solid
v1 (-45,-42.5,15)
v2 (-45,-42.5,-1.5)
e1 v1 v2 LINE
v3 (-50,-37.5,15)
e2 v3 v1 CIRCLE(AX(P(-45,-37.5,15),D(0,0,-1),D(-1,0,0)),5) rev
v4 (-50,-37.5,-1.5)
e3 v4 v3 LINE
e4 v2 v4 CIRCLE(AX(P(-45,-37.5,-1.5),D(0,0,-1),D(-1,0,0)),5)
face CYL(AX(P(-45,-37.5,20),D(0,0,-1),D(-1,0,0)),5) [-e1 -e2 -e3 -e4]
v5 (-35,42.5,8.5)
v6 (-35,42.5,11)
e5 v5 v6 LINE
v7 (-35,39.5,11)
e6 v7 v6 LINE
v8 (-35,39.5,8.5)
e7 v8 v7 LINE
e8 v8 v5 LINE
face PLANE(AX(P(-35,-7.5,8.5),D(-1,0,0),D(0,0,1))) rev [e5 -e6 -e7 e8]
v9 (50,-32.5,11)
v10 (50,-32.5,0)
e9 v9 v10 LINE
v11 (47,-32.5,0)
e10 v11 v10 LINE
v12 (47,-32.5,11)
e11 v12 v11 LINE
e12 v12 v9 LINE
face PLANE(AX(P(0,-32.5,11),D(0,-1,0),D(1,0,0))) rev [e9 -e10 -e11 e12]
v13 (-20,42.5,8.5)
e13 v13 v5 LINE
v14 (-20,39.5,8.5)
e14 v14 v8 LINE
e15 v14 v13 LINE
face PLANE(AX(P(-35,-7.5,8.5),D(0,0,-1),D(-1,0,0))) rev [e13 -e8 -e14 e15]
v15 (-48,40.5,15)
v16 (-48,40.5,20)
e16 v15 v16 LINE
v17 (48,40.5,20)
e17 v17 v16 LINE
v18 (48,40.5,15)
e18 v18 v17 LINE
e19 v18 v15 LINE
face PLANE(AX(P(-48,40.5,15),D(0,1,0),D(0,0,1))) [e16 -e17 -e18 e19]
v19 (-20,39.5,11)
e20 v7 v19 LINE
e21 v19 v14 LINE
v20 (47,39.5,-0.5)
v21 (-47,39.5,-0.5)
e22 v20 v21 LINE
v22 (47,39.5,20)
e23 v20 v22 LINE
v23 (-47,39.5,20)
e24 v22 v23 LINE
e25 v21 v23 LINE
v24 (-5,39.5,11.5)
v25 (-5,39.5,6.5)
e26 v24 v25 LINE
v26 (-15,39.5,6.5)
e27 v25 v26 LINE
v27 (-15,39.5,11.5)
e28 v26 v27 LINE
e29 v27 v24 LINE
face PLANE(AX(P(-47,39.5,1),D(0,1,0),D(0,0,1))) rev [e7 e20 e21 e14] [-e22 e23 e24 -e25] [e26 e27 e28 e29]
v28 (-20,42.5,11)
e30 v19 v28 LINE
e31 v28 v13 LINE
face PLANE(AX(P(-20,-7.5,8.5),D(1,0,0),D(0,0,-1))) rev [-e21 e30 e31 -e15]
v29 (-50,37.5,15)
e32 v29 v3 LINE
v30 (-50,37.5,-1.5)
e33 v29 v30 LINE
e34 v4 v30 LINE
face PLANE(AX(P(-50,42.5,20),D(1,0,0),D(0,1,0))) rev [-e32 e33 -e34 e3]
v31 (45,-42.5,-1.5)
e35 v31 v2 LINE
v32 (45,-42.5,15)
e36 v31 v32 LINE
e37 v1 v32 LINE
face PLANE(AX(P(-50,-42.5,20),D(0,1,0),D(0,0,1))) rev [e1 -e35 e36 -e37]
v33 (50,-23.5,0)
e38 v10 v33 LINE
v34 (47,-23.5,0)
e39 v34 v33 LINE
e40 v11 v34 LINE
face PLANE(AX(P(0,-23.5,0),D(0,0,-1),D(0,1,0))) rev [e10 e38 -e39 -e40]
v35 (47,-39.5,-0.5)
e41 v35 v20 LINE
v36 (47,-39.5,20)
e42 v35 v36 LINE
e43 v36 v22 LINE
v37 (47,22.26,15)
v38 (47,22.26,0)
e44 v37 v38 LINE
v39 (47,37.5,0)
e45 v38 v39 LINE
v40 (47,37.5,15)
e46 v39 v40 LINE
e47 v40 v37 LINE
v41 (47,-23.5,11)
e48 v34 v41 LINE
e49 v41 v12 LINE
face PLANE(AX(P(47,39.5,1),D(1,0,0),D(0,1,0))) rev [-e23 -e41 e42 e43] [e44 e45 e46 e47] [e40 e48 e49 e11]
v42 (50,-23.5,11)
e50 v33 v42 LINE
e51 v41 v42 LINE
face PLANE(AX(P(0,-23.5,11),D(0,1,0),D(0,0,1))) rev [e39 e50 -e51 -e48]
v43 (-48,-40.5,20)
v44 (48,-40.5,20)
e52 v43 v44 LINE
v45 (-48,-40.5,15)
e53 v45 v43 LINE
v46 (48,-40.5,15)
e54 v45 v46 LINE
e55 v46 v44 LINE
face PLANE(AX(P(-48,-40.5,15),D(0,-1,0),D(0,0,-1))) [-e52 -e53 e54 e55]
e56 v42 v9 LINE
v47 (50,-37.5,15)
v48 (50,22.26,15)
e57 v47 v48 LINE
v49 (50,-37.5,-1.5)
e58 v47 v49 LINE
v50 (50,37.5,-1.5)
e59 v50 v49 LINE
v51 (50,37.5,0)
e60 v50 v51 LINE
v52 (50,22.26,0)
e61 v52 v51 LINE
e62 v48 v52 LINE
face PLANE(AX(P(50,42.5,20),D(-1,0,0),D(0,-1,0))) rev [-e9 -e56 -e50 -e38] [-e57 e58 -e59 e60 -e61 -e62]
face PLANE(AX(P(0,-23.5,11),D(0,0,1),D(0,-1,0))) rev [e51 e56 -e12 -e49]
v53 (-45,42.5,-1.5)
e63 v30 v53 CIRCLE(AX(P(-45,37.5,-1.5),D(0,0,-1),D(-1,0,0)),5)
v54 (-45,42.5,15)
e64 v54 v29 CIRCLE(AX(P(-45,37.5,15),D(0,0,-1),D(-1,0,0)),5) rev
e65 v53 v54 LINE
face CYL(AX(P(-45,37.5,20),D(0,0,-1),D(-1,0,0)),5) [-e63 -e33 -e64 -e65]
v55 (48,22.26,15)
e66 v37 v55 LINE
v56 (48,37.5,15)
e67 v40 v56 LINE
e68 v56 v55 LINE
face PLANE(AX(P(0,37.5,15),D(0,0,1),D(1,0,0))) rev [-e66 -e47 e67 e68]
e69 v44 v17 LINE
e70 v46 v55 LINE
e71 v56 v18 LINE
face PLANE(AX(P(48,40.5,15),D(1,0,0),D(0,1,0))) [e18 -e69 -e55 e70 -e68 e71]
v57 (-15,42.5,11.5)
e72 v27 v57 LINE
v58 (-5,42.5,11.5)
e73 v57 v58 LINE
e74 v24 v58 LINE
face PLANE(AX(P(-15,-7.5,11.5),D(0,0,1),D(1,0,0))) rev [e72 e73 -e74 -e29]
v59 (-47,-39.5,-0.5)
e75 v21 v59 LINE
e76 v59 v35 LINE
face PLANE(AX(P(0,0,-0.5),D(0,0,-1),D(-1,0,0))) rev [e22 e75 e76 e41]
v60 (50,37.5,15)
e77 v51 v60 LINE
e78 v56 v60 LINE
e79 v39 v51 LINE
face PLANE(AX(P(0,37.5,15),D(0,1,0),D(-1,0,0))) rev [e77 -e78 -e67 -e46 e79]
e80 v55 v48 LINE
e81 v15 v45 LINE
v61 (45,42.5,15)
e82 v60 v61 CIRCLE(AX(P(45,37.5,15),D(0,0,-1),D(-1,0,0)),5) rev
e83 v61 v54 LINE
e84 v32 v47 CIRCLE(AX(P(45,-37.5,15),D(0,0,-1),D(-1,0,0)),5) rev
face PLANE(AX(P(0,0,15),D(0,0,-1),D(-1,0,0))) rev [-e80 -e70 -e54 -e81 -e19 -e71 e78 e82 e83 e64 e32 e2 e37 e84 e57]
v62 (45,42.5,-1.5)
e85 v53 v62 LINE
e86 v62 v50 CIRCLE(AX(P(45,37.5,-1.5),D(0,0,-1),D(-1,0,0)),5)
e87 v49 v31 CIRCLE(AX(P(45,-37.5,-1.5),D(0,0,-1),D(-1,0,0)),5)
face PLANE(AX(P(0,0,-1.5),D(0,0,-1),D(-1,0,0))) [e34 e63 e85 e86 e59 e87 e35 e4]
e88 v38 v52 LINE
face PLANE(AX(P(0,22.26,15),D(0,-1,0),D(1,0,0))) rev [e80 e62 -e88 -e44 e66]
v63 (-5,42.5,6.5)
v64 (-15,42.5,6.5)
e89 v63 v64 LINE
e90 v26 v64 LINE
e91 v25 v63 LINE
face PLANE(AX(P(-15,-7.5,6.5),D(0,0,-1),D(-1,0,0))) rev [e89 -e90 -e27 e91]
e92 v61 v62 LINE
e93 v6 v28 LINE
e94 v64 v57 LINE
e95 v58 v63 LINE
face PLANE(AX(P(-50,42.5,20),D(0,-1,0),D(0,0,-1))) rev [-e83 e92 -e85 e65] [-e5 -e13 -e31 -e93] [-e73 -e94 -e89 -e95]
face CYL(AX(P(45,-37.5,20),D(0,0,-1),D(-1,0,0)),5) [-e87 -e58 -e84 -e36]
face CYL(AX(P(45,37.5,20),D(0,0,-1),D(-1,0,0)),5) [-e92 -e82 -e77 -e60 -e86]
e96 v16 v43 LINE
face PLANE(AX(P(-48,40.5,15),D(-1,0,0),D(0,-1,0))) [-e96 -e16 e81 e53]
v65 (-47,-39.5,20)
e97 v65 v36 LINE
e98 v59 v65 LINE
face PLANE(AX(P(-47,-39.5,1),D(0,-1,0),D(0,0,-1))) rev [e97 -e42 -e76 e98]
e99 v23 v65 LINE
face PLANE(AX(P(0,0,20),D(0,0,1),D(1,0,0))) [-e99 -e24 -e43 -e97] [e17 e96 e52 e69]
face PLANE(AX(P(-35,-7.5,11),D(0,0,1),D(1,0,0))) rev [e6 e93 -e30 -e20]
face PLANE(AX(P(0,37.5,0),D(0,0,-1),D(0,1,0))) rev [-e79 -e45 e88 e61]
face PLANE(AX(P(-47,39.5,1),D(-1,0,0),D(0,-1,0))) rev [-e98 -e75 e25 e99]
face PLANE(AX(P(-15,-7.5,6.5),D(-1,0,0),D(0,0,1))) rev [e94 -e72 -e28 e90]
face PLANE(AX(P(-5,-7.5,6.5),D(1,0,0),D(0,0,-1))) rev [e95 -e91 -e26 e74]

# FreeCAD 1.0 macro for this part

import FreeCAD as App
import Part
import Sketcher

V = App.Vector


def edges_at(feature, points):
    """Names of the edges that pass closest to the given points."""
    edges = feature.Shape.Edges
    near = lambda p: min(range(len(edges)), key=lambda i: edges[i].distToShape(Part.Vertex(*p))[0])
    return sorted({f"Edge{near(p) + 1}" for p in points})

doc = App.newDocument("Part")
body = doc.addObject("PartDesign::Body", "Body")

# Sketch on XY plane
sketch1 = body.newObject("Sketcher::SketchObject", "Sketch")
sketch1.AttachmentSupport = (doc.getObject("XY_Plane"), [""])
sketch1.MapMode = "FlatFace"
sketch1.addGeometry([
    Part.LineSegment(V(-50, 42, 0), V(-50, -42, 0)),
    Part.LineSegment(V(-50, -42, 0), V(50, -42, 0)),
    Part.LineSegment(V(50, -42, 0), V(50, 42, 0)),
    Part.LineSegment(V(50, 42, 0), V(-50, 42, 0)),
], False)
sketch1.addConstraint([
    Sketcher.Constraint("Coincident", 0, 2, 1, 1),
    Sketcher.Constraint("Coincident", 1, 2, 2, 1),
    Sketcher.Constraint("Coincident", 2, 2, 3, 1),
    Sketcher.Constraint("Coincident", 3, 2, 0, 1),
    Sketcher.Constraint("Vertical", 0),
    Sketcher.Constraint("Horizontal", 1),
    Sketcher.Constraint("Vertical", 2),
    Sketcher.Constraint("Horizontal", 3),
    Sketcher.Constraint("Symmetric", 0, 2, 2, 2, -1, 1),
    Sketcher.Constraint("DistanceX", 1, 1, 1, 2, 100.0),
    Sketcher.Constraint("DistanceY", 0, 2, 0, 1, 85.0),
])
pad1 = body.newObject("PartDesign::Pad", "Pad")
pad1.Profile = sketch1
pad1.Length = 20

# Sketch on XY plane
sketch2 = body.newObject("Sketcher::SketchObject", "Sketch001")
sketch2.AttachmentSupport = (doc.getObject("XY_Plane"), [""])
sketch2.MapMode = "FlatFace"
sketch2.AttachmentOffset = App.Placement(V(0, 0, 20), App.Rotation())
sketch2.addGeometry([
    Part.LineSegment(V(-50, 42, 0), V(-50, -42, 0)),  # 0
    Part.LineSegment(V(-50, -42, 0), V(50, -42, 0)),  # 1
    Part.LineSegment(V(50, -42, 0), V(50, 42, 0)),  # 2
    Part.LineSegment(V(50, 42, 0), V(-50, 42, 0)),  # 3
    Part.LineSegment(V(48, -40, 0), V(-48, -40, 0)),  # 4
    Part.LineSegment(V(-48, -40, 0), V(-48, 40, 0)),  # 5
    Part.LineSegment(V(-48, 40, 0), V(48, 40, 0)),  # 6
    Part.LineSegment(V(48, 40, 0), V(48, -40, 0)),  # 7
], False)
sketch2.addConstraint([
    Sketcher.Constraint("Coincident", 0, 2, 1, 1),
    Sketcher.Constraint("Coincident", 1, 2, 2, 1),
    Sketcher.Constraint("Coincident", 2, 2, 3, 1),
    Sketcher.Constraint("Coincident", 3, 2, 0, 1),
    Sketcher.Constraint("Coincident", 4, 2, 5, 1),
    Sketcher.Constraint("Coincident", 5, 2, 6, 1),
    Sketcher.Constraint("Coincident", 6, 2, 7, 1),
    Sketcher.Constraint("Coincident", 7, 2, 4, 1),
    Sketcher.Constraint("Vertical", 0),
    Sketcher.Constraint("Horizontal", 1),
    Sketcher.Constraint("Vertical", 2),
    Sketcher.Constraint("Horizontal", 3),
    Sketcher.Constraint("Horizontal", 4),
    Sketcher.Constraint("Vertical", 5),
    Sketcher.Constraint("Horizontal", 6),
    Sketcher.Constraint("Vertical", 7),
    Sketcher.Constraint("Symmetric", 0, 2, 2, 2, -1, 1),
    Sketcher.Constraint("Symmetric", 4, 2, 6, 2, -1, 1),
    Sketcher.Constraint("DistanceX", 1, 1, 1, 2, 100.0),
    Sketcher.Constraint("DistanceX", 4, 2, 4, 1, 96.0),
    Sketcher.Constraint("DistanceY", 0, 2, 0, 1, 85.0),
    Sketcher.Constraint("DistanceY", 5, 1, 5, 2, 81.0),
])
pocket1 = body.newObject("PartDesign::Pocket", "Pocket")
pocket1.Profile = sketch2
pocket1.Length = 5

# Sketch on XY plane
sketch3 = body.newObject("Sketcher::SketchObject", "Sketch002")
sketch3.AttachmentSupport = (doc.getObject("XY_Plane"), [""])
sketch3.MapMode = "FlatFace"
sketch3.AttachmentOffset = App.Placement(V(0, 0, 20), App.Rotation())
sketch3.addGeometry([
    Part.LineSegment(V(-47, 40, 0), V(-47, -40, 0)),
    Part.LineSegment(V(-47, -40, 0), V(47, -40, 0)),
    Part.LineSegment(V(47, -40, 0), V(47, 40, 0)),
    Part.LineSegment(V(47, 40, 0), V(-47, 40, 0)),
], False)
sketch3.addConstraint([
    Sketcher.Constraint("Coincident", 0, 2, 1, 1),
    Sketcher.Constraint("Coincident", 1, 2, 2, 1),
    Sketcher.Constraint("Coincident", 2, 2, 3, 1),
    Sketcher.Constraint("Coincident", 3, 2, 0, 1),
    Sketcher.Constraint("Vertical", 0),
    Sketcher.Constraint("Horizontal", 1),
    Sketcher.Constraint("Vertical", 2),
    Sketcher.Constraint("Horizontal", 3),
    Sketcher.Constraint("Symmetric", 0, 2, 2, 2, -1, 1),
    Sketcher.Constraint("DistanceX", 1, 1, 1, 2, 94.0),
    Sketcher.Constraint("DistanceY", 0, 2, 0, 1, 79.0),
])
pocket2 = body.newObject("PartDesign::Pocket", "Pocket001")
pocket2.Profile = sketch3
pocket2.Length = 19

# Sketch on XY plane
sketch4 = body.newObject("Sketcher::SketchObject", "Sketch003")
sketch4.AttachmentSupport = (doc.getObject("XY_Plane"), [""])
sketch4.MapMode = "FlatFace"
sketch4.addGeometry([
    Part.LineSegment(V(50, 42, 0), V(50, -42, 0)),
    Part.LineSegment(V(50, -42, 0), V(-50, -42, 0)),
    Part.LineSegment(V(-50, -42, 0), V(-50, 42, 0)),
    Part.LineSegment(V(-50, 42, 0), V(50, 42, 0)),
], False)
sketch4.addConstraint([
    Sketcher.Constraint("Coincident", 0, 2, 1, 1),
    Sketcher.Constraint("Coincident", 1, 2, 2, 1),
    Sketcher.Constraint("Coincident", 2, 2, 3, 1),
    Sketcher.Constraint("Coincident", 3, 2, 0, 1),
    Sketcher.Constraint("Vertical", 0),
    Sketcher.Constraint("Horizontal", 1),
    Sketcher.Constraint("Vertical", 2),
    Sketcher.Constraint("Horizontal", 3),
    Sketcher.Constraint("Symmetric", 0, 2, 2, 2, -1, 1),
    Sketcher.Constraint("DistanceX", 1, 2, 1, 1, 100.0),
    Sketcher.Constraint("DistanceY", 0, 2, 0, 1, 85.0),
])
pad2 = body.newObject("PartDesign::Pad", "Pad001")
pad2.Profile = sketch4
pad2.Length = 1.5
pad2.Reversed = True

# Sketch on XY plane
sketch5 = body.newObject("Sketcher::SketchObject", "Sketch004")
sketch5.AttachmentSupport = (doc.getObject("XY_Plane"), [""])
sketch5.MapMode = "FlatFace"
sketch5.AttachmentOffset = App.Placement(V(0, 0, 1), App.Rotation())
sketch5.addGeometry([
    Part.LineSegment(V(-47, 40, 0), V(-47, -40, 0)),
    Part.LineSegment(V(-47, -40, 0), V(47, -40, 0)),
    Part.LineSegment(V(47, -40, 0), V(47, 40, 0)),
    Part.LineSegment(V(47, 40, 0), V(-47, 40, 0)),
], False)
sketch5.addConstraint([
    Sketcher.Constraint("Coincident", 0, 2, 1, 1),
    Sketcher.Constraint("Coincident", 1, 2, 2, 1),
    Sketcher.Constraint("Coincident", 2, 2, 3, 1),
    Sketcher.Constraint("Coincident", 3, 2, 0, 1),
    Sketcher.Constraint("Vertical", 0),
    Sketcher.Constraint("Horizontal", 1),
    Sketcher.Constraint("Vertical", 2),
    Sketcher.Constraint("Horizontal", 3),
    Sketcher.Constraint("Symmetric", 0, 2, 2, 2, -1, 1),
    Sketcher.Constraint("DistanceX", 1, 1, 1, 2, 94.0),
    Sketcher.Constraint("DistanceY", 0, 2, 0, 1, 79.0),
])
pocket3 = body.newObject("PartDesign::Pocket", "Pocket002")
pocket3.Profile = sketch5
pocket3.Length = 1.5

# Sketch on YZ plane
sketch6 = body.newObject("Sketcher::SketchObject", "Sketch005")
sketch6.AttachmentSupport = (doc.getObject("YZ_Plane"), [""])
sketch6.MapMode = "FlatFace"
sketch6.AttachmentOffset = App.Placement(V(0, 0, 50), App.Rotation())
sketch6.addGeometry([
    Part.LineSegment(V(-24, 11, 0), V(-32, 11, 0)),
    Part.LineSegment(V(-32, 11, 0), V(-32, 0, 0)),
    Part.LineSegment(V(-32, 0, 0), V(-24, 0, 0)),
    Part.LineSegment(V(-24, 0, 0), V(-24, 11, 0)),
], False)
sketch6.addConstraint([
    Sketcher.Constraint("Coincident", 0, 2, 1, 1),
    Sketcher.Constraint("Coincident", 1, 2, 2, 1),
    Sketcher.Constraint("Coincident", 2, 2, 3, 1),
    Sketcher.Constraint("Coincident", 3, 2, 0, 1),
    Sketcher.Constraint("Horizontal", 0),
    Sketcher.Constraint("Vertical", 1),
    Sketcher.Constraint("Horizontal", 2),
    Sketcher.Constraint("Vertical", 3),
    Sketcher.Constraint("PointOnObject", 1, 2, -1),
    Sketcher.Constraint("DistanceX", 0, 2, 0, 1, 9.0),
    Sketcher.Constraint("DistanceY", 1, 2, 1, 1, 11.0),
    Sketcher.Constraint("DistanceX", 0, 2, -1, 1, 32.5),
])
pocket4 = body.newObject("PartDesign::Pocket", "Pocket003")
pocket4.Profile = sketch6
pocket4.Length = 50

# Sketch on YZ plane
sketch7 = body.newObject("Sketcher::SketchObject", "Sketch006")
sketch7.AttachmentSupport = (doc.getObject("YZ_Plane"), [""])
sketch7.MapMode = "FlatFace"
sketch7.AttachmentOffset = App.Placement(V(0, 0, 50), App.Rotation())
sketch7.addGeometry([
    Part.LineSegment(V(38, 15, 0), V(22, 15, 0)),
    Part.LineSegment(V(22, 15, 0), V(22, 0, 0)),
    Part.LineSegment(V(22, 0, 0), V(38, 0, 0)),
    Part.LineSegment(V(38, 0, 0), V(38, 15, 0)),
], False)
sketch7.addConstraint([
    Sketcher.Constraint("Coincident", 0, 2, 1, 1),
    Sketcher.Constraint("Coincident", 1, 2, 2, 1),
    Sketcher.Constraint("Coincident", 2, 2, 3, 1),
    Sketcher.Constraint("Coincident", 3, 2, 0, 1),
    Sketcher.Constraint("Horizontal", 0),
    Sketcher.Constraint("Vertical", 1),
    Sketcher.Constraint("Horizontal", 2),
    Sketcher.Constraint("Vertical", 3),
    Sketcher.Constraint("PointOnObject", 1, 2, -1),
    Sketcher.Constraint("DistanceY", 1, 2, 1, 1, 15.0),
    Sketcher.Constraint("DistanceX", 0, 2, 0, 1, 15.24),
    Sketcher.Constraint("DistanceX", -1, 1, 2, 2, 37.5),
])
pocket5 = body.newObject("PartDesign::Pocket", "Pocket004")
pocket5.Profile = sketch7
pocket5.Length = 50

# Sketch on XZ plane
sketch8 = body.newObject("Sketcher::SketchObject", "Sketch007")
sketch8.AttachmentSupport = (doc.getObject("XZ_Plane"), [""])
sketch8.MapMode = "FlatFace"
sketch8.AttachmentOffset = App.Placement(V(0, 0, -42.5), App.Rotation())
sketch8.addGeometry([
    Part.LineSegment(V(-35, 8.5, 0), V(-35, 11, 0)),
    Part.LineSegment(V(-35, 11, 0), V(-20, 11, 0)),
    Part.LineSegment(V(-20, 11, 0), V(-20, 8.5, 0)),
    Part.LineSegment(V(-20, 8.5, 0), V(-35, 8.5, 0)),
], False)
sketch8.addConstraint([
    Sketcher.Constraint("Coincident", 0, 2, 1, 1),
    Sketcher.Constraint("Coincident", 1, 2, 2, 1),
    Sketcher.Constraint("Coincident", 2, 2, 3, 1),
    Sketcher.Constraint("Coincident", 3, 2, 0, 1),
    Sketcher.Constraint("Vertical", 0),
    Sketcher.Constraint("Horizontal", 1),
    Sketcher.Constraint("Vertical", 2),
    Sketcher.Constraint("Horizontal", 3),
    Sketcher.Constraint("DistanceX", 1, 1, 1, 2, 15.0),
    Sketcher.Constraint("DistanceY", 0, 1, 0, 2, 2.5),
    Sketcher.Constraint("DistanceX", 0, 2, -1, 1, 35.0),
    Sketcher.Constraint("DistanceY", -1, 1, 0, 2, 11.0),
])
pocket6 = body.newObject("PartDesign::Pocket", "Pocket005")
pocket6.Profile = sketch8
pocket6.Length = 50
pocket6.Reversed = True

# Sketch on XZ plane
sketch9 = body.newObject("Sketcher::SketchObject", "Sketch008")
sketch9.AttachmentSupport = (doc.getObject("XZ_Plane"), [""])
sketch9.MapMode = "FlatFace"
sketch9.AttachmentOffset = App.Placement(V(0, 0, -42.5), App.Rotation())
sketch9.addGeometry([
    Part.LineSegment(V(-15, 6, 0), V(-15, 12, 0)),
    Part.LineSegment(V(-15, 12, 0), V(-5, 12, 0)),
    Part.LineSegment(V(-5, 12, 0), V(-5, 6, 0)),
    Part.LineSegment(V(-5, 6, 0), V(-15, 6, 0)),
], False)
sketch9.addConstraint([
    Sketcher.Constraint("Coincident", 0, 2, 1, 1),
    Sketcher.Constraint("Coincident", 1, 2, 2, 1),
    Sketcher.Constraint("Coincident", 2, 2, 3, 1),
    Sketcher.Constraint("Coincident", 3, 2, 0, 1),
    Sketcher.Constraint("Vertical", 0),
    Sketcher.Constraint("Horizontal", 1),
    Sketcher.Constraint("Vertical", 2),
    Sketcher.Constraint("Horizontal", 3),
    Sketcher.Constraint("DistanceX", 1, 1, 1, 2, 10.0),
    Sketcher.Constraint("DistanceY", 0, 1, 0, 2, 5.0),
    Sketcher.Constraint("DistanceX", 0, 2, -1, 1, 15.0),
    Sketcher.Constraint("DistanceY", -1, 1, 0, 2, 11.5),
])
pocket7 = body.newObject("PartDesign::Pocket", "Pocket006")
pocket7.Profile = sketch9
pocket7.Length = 50
pocket7.Reversed = True
doc.recompute()

fillet = body.newObject("PartDesign::Fillet", "Fillet")
fillet.Base = (pocket7, edges_at(pocket7, [
    (50, -42.5, 6.75),
    (-50, -42.5, 6.75),
    (-50, 42.5, 6.75),
    (50, 42.5, 6.75),
]))
fillet.Radius = 5

doc.recompute()
